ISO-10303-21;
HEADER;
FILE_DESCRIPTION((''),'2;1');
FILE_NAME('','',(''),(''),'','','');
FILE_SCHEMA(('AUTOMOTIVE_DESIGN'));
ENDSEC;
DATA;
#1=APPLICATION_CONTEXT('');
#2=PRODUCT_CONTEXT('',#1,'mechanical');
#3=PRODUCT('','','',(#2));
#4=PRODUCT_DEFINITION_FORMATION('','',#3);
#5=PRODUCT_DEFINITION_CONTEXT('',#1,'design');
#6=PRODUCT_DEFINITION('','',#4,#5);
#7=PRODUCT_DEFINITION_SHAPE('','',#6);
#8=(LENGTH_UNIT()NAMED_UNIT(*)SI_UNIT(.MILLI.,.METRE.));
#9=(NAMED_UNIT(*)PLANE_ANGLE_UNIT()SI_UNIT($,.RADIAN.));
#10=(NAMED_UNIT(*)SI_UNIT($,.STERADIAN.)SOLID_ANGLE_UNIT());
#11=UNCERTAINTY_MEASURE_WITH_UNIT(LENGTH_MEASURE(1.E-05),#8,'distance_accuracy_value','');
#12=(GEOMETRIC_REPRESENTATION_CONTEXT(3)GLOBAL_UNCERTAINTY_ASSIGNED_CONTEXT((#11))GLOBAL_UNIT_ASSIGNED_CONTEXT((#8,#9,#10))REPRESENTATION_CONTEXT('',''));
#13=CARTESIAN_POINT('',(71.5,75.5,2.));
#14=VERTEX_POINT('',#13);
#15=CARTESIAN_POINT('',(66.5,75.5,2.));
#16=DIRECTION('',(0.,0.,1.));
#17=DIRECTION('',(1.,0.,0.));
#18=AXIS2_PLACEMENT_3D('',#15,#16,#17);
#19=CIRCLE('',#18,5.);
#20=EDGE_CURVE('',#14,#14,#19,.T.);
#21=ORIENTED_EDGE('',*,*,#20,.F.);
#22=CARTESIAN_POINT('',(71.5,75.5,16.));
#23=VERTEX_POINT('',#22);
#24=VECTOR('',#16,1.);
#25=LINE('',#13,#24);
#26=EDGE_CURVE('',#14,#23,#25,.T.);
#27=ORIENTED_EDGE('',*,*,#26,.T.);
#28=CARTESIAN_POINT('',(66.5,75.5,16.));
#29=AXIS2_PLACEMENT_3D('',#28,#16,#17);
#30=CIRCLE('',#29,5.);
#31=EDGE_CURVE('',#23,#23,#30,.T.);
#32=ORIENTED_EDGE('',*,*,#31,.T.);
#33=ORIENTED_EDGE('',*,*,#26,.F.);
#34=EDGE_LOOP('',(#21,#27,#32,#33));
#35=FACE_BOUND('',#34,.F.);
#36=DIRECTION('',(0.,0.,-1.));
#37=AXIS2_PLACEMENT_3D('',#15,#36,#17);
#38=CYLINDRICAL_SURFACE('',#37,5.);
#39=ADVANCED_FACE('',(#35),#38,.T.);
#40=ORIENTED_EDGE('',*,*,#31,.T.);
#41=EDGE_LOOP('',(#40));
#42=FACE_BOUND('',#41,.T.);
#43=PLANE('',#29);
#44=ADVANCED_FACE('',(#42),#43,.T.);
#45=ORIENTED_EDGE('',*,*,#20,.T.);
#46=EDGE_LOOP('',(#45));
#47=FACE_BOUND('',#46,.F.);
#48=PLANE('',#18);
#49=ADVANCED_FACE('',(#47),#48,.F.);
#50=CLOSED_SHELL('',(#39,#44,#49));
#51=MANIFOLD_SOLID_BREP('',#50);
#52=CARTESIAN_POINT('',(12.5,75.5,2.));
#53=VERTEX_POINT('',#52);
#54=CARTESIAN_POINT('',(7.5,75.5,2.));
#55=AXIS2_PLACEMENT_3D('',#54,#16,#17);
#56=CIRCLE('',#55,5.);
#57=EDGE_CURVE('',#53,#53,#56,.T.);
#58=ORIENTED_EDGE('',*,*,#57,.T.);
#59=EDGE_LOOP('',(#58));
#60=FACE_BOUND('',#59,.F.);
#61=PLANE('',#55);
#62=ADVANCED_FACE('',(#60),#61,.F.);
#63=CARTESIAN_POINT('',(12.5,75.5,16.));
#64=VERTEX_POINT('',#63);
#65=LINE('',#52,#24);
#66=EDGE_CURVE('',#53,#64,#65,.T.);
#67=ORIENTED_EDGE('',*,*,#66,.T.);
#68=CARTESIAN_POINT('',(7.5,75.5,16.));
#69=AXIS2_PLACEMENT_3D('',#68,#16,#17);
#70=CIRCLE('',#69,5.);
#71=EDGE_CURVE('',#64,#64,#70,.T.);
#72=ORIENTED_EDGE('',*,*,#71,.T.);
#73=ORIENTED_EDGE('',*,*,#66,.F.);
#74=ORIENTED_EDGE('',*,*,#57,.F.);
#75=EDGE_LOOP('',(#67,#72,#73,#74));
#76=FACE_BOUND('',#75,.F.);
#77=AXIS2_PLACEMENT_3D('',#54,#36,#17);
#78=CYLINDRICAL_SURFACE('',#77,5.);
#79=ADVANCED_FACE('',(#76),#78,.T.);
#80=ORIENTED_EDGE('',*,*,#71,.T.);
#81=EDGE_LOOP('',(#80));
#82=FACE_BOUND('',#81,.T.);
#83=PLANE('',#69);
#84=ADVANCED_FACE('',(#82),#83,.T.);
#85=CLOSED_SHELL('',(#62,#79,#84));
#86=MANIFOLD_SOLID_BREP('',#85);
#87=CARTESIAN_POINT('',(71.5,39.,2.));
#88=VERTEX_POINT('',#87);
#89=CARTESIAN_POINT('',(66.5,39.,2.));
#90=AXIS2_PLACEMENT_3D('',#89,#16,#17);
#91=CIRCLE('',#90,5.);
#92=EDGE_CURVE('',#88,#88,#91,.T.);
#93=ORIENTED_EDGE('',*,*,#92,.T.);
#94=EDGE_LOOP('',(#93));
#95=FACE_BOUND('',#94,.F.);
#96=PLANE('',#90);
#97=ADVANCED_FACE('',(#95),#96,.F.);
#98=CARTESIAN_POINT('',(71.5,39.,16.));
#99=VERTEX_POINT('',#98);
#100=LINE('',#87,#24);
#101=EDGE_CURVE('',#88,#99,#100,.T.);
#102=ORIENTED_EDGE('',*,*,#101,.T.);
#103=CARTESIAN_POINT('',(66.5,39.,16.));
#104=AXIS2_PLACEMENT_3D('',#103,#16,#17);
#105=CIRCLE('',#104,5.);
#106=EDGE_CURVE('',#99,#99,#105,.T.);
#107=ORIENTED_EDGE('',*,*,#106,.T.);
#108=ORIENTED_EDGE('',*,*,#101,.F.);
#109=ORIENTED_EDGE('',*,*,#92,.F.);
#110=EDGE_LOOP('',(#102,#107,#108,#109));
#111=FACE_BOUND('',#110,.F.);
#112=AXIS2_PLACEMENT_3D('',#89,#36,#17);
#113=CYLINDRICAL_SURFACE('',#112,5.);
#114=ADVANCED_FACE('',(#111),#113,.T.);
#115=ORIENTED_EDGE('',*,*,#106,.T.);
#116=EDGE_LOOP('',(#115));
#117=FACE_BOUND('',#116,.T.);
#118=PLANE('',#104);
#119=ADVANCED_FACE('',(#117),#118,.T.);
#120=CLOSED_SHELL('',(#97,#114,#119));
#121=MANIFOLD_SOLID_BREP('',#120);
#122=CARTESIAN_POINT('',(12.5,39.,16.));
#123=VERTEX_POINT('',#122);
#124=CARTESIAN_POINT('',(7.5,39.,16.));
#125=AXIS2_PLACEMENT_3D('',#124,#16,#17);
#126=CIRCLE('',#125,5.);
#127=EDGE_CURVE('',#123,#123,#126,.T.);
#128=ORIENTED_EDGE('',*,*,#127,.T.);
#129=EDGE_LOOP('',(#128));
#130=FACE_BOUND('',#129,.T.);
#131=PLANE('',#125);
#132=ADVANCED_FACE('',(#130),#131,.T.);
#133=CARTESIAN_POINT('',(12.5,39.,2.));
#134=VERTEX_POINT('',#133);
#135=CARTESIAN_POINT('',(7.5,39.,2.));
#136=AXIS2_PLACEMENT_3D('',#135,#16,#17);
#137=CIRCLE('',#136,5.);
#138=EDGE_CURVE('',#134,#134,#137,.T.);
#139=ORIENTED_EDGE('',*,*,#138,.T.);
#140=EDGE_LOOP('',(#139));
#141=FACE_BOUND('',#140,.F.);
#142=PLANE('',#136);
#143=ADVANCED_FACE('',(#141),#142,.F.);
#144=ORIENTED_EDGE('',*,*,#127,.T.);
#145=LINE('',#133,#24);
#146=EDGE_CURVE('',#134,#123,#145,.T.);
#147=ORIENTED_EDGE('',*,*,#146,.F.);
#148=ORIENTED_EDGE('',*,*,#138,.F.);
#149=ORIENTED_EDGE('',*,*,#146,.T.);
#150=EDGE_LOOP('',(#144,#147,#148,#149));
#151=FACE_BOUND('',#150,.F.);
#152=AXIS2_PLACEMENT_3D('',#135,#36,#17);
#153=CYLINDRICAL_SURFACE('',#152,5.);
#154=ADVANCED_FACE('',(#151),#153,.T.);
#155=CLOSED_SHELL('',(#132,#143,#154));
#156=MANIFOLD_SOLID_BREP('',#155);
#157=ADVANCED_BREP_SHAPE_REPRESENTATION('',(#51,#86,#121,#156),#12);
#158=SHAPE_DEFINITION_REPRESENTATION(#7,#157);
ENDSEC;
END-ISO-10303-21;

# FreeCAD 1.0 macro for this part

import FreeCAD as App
import Part
import Sketcher
from FreeCAD import Vector

doc = App.newDocument("Part")
body = doc.addObject("PartDesign::Body", "Body")

# Sketch on XY plane
sketch1 = body.newObject("Sketcher::SketchObject", "Sketch")
sketch1.AttachmentSupport = (doc.getObject("XY_Plane"), [""])
sketch1.MapMode = "FlatFace"
sketch1.AttachmentOffset = App.Placement(Vector(0, 0, 2), App.Rotation())
sketch1.addGeometry(Part.Circle(Vector(8, 76, 0), Vector(0, 0, 1), 5), False)
sketch1.addConstraint([
    Sketcher.Constraint("Diameter", 0, 10.0),
    Sketcher.Constraint("DistanceX", -1, 1, 0, 3, 7.5),
    Sketcher.Constraint("DistanceY", -1, 1, 0, 3, 75.5),
])
pad1 = body.newObject("PartDesign::Pad", "Pad")
pad1.Profile = sketch1
pad1.Length = 14
body2 = doc.addObject("PartDesign::Body", "Body001")

# Sketch on XY plane
sketch2 = body2.newObject("Sketcher::SketchObject", "Sketch001")
sketch2.AttachmentSupport = (doc.getObject("XY_Plane001"), [""])
sketch2.MapMode = "FlatFace"
sketch2.AttachmentOffset = App.Placement(Vector(0, 0, 2), App.Rotation())
sketch2.addGeometry(Part.Circle(Vector(66, 39, 0), Vector(0, 0, 1), 5), False)
sketch2.addConstraint([
    Sketcher.Constraint("Diameter", 0, 10.0),
    Sketcher.Constraint("DistanceY", -1, 1, 0, 3, 39.0),
    Sketcher.Constraint("DistanceX", -1, 1, 0, 3, 66.5),
])
pad2 = body2.newObject("PartDesign::Pad", "Pad001")
pad2.Profile = sketch2
pad2.Length = 14
body3 = doc.addObject("PartDesign::Body", "Body002")

# Sketch on XY plane
sketch3 = body3.newObject("Sketcher::SketchObject", "Sketch002")
sketch3.AttachmentSupport = (doc.getObject("XY_Plane002"), [""])
sketch3.MapMode = "FlatFace"
sketch3.AttachmentOffset = App.Placement(Vector(0, 0, 2), App.Rotation())
sketch3.addGeometry(Part.Circle(Vector(8, 39, 0), Vector(0, 0, 1), 5), False)
sketch3.addConstraint([
    Sketcher.Constraint("Diameter", 0, 10.0),
    Sketcher.Constraint("DistanceY", -1, 1, 0, 3, 39.0),
    Sketcher.Constraint("DistanceX", -1, 1, 0, 3, 7.5),
])
pad3 = body3.newObject("PartDesign::Pad", "Pad002")
pad3.Profile = sketch3
pad3.Length = 14
body4 = doc.addObject("PartDesign::Body", "Body003")
body4.AllowCompound = True

# Sketch on XY plane
sketch4 = body4.newObject("Sketcher::SketchObject", "Sketch003")
sketch4.AttachmentSupport = (doc.getObject("XY_Plane003"), [""])
sketch4.MapMode = "FlatFace"
sketch4.AttachmentOffset = App.Placement(Vector(0, 0, 2), App.Rotation())
sketch4.addGeometry(Part.Circle(Vector(66, 76, 0), Vector(0, 0, 1), 5), False)
sketch4.addConstraint([
    Sketcher.Constraint("Diameter", 0, 10.0),
    Sketcher.Constraint("DistanceX", -1, 1, 0, 3, 66.5),
    Sketcher.Constraint("DistanceY", -1, 1, 0, 3, 75.5),
])
pad4 = body4.newObject("PartDesign::Pad", "Pad003")
pad4.Profile = sketch4
pad4.Length = 14
doc.recompute()

boolean = body4.newObject("PartDesign::Boolean", "Boolean")
boolean.Type = "Fuse"
boolean.addObjects([body])
doc.recompute()

boolean2 = body4.newObject("PartDesign::Boolean", "Boolean001")
boolean2.Type = "Fuse"
boolean2.addObjects([body2])
doc.recompute()

boolean3 = body4.newObject("PartDesign::Boolean", "Boolean002")
boolean3.Type = "Fuse"
boolean3.addObjects([body3])

doc.recompute()
